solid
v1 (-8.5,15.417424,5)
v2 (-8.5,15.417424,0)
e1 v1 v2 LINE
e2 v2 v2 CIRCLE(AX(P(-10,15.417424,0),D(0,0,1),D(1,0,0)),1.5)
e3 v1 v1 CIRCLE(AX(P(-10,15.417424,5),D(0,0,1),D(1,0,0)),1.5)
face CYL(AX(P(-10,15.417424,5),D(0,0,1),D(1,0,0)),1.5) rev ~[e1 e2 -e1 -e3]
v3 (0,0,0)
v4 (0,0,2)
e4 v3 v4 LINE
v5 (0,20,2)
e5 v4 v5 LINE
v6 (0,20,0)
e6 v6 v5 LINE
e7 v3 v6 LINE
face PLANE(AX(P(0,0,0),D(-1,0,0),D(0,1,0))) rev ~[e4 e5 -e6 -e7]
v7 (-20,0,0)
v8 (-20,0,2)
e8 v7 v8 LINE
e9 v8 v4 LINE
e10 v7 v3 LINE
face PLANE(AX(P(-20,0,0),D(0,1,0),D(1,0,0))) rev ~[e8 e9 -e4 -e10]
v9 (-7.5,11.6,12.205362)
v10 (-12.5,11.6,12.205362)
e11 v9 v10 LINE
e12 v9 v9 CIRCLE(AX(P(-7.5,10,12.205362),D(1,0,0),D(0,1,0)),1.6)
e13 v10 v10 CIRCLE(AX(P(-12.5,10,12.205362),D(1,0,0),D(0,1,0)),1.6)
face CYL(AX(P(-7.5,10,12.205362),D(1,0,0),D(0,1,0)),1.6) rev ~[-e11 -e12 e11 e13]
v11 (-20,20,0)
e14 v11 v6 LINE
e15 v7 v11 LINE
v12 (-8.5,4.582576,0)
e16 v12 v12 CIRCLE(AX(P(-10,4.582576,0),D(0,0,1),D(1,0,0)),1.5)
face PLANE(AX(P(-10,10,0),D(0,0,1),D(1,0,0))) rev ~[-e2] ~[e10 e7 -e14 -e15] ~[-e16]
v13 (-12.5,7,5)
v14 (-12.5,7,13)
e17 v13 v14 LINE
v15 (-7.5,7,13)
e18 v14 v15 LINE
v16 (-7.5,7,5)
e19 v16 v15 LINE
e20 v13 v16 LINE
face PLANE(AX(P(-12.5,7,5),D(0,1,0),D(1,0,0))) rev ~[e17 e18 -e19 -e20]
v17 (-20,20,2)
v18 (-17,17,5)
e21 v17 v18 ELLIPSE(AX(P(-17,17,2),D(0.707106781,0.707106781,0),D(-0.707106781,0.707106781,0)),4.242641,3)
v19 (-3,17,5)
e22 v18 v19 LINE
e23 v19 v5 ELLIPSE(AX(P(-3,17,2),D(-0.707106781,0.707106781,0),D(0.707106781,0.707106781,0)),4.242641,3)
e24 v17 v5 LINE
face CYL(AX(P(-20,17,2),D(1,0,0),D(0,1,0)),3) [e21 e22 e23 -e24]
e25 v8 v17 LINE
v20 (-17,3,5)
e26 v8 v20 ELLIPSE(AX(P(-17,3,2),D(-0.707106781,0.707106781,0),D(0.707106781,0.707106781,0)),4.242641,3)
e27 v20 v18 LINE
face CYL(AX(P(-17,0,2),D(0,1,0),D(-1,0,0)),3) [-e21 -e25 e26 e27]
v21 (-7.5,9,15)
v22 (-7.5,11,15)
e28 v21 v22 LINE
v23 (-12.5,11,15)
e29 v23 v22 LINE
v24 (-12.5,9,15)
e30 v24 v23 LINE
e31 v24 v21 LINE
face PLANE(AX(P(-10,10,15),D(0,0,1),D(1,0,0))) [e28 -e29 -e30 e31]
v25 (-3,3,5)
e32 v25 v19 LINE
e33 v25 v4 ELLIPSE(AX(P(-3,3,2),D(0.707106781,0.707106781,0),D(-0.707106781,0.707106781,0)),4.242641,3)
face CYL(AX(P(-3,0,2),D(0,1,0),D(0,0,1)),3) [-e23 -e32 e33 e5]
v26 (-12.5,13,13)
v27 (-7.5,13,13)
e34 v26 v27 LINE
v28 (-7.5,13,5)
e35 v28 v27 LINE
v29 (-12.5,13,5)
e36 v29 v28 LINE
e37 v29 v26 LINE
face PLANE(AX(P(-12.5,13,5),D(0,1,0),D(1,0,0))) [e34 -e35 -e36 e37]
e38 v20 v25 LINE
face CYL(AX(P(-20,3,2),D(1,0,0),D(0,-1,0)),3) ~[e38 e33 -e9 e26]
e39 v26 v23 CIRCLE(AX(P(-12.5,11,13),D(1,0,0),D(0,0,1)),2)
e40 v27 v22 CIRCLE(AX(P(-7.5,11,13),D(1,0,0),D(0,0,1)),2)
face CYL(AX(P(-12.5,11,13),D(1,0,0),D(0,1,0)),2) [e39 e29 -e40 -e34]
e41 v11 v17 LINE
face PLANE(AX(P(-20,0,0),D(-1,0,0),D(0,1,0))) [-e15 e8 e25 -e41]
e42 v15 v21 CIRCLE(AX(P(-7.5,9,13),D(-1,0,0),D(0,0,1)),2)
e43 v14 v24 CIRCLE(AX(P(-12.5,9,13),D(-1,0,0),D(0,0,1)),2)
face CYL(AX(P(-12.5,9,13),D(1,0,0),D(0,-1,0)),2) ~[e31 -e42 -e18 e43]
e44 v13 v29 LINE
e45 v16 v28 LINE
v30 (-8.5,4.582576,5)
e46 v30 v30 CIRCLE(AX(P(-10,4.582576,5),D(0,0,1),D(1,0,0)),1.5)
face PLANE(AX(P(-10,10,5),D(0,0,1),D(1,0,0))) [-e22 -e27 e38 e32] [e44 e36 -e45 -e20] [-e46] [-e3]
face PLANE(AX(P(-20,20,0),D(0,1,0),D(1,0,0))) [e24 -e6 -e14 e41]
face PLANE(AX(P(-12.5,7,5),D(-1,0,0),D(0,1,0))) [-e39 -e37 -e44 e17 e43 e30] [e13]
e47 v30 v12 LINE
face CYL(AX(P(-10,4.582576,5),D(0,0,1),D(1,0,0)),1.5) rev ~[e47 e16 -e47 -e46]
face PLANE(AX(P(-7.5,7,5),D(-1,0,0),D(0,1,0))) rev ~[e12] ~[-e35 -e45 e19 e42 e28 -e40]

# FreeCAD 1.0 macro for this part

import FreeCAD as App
import Part
import Sketcher
from FreeCAD import Vector


def edges_at(feature, points):
    """Names of the edges that pass closest to the given points."""
    edges = feature.Shape.Edges
    near = lambda p: min(range(len(edges)), key=lambda i: edges[i].distToShape(Part.Vertex(*p))[0])
    return sorted({f"Edge{near(p) + 1}" for p in points})

doc = App.newDocument("Part")
body = doc.addObject("PartDesign::Body", "Body")

sketch1 = body.newObject("Sketcher::SketchObject", "Sketch")
sketch1.AttachmentSupport = (doc.getObject("XY_Plane"), [""])
sketch1.MapMode = "FlatFace"
sketch1.addGeometry(Part.LineSegment(Vector(-20, 20, 0), Vector(-20, 0, 0)), False)
sketch1.addGeometry(Part.LineSegment(Vector(-20, 0, 0), Vector(0, 0, 0)), False)
sketch1.addGeometry(Part.LineSegment(Vector(0, 0, 0), Vector(0, 20, 0)), False)
sketch1.addGeometry(Part.LineSegment(Vector(0, 20, 0), Vector(-20, 20, 0)), False)
sketch1.addConstraint(Sketcher.Constraint("Coincident", 0, 2, 1, 1))
sketch1.addConstraint(Sketcher.Constraint("Coincident", 1, 2, 2, 1))
sketch1.addConstraint(Sketcher.Constraint("Coincident", 2, 2, 3, 1))
sketch1.addConstraint(Sketcher.Constraint("Coincident", 3, 2, 0, 1))
sketch1.addConstraint(Sketcher.Constraint("Vertical", 0))
sketch1.addConstraint(Sketcher.Constraint("Horizontal", 1))
sketch1.addConstraint(Sketcher.Constraint("Vertical", 2))
sketch1.addConstraint(Sketcher.Constraint("Horizontal", 3))
sketch1.addConstraint(Sketcher.Constraint("Coincident", 1, 2, -1, 1))
sketch1.addConstraint(Sketcher.Constraint("Equal", 3, 0))
sketch1.addConstraint(Sketcher.Constraint("DistanceX", 1, 1, 1, 2, 20.0))
pad1 = body.newObject("PartDesign::Pad", "Pad")
pad1.Profile = sketch1
pad1.Length = 5

sketch2 = body.newObject("Sketcher::SketchObject", "Sketch001")
sketch2.AttachmentSupport = (doc.getObject("XY_Plane"), [""])
sketch2.MapMode = "FlatFace"
sketch2.AttachmentOffset = App.Placement(Vector(0, 0, 5), App.Rotation())
sketch2.addGeometry(Part.LineSegment(Vector(-12, 13, 0), Vector(-12, 7, 0)), False)
sketch2.addGeometry(Part.LineSegment(Vector(-12, 7, 0), Vector(-8, 7, 0)), False)
sketch2.addGeometry(Part.LineSegment(Vector(-8, 7, 0), Vector(-8, 13, 0)), False)
sketch2.addGeometry(Part.LineSegment(Vector(-8, 13, 0), Vector(-12, 13, 0)), False)
sketch2.addConstraint(Sketcher.Constraint("Coincident", 0, 2, 1, 1))
sketch2.addConstraint(Sketcher.Constraint("Coincident", 1, 2, 2, 1))
sketch2.addConstraint(Sketcher.Constraint("Coincident", 2, 2, 3, 1))
sketch2.addConstraint(Sketcher.Constraint("Coincident", 3, 2, 0, 1))
sketch2.addConstraint(Sketcher.Constraint("Vertical", 0))
sketch2.addConstraint(Sketcher.Constraint("Horizontal", 1))
sketch2.addConstraint(Sketcher.Constraint("Vertical", 2))
sketch2.addConstraint(Sketcher.Constraint("Horizontal", 3))
sketch2.addConstraint(Sketcher.Constraint("DistanceX", 1, 1, 1, 2, 5.0))
sketch2.addConstraint(Sketcher.Constraint("DistanceY", 0, 2, 0, 1, 6.0))
sketch2.addConstraint(Sketcher.Constraint("DistanceY", -1, 1, 0, 2, 7.0))
sketch2.addConstraint(Sketcher.Constraint("DistanceX", 0, 2, -1, 1, 12.5))
pad2 = body.newObject("PartDesign::Pad", "Pad001")
pad2.Profile = sketch2
pad2.Length = 10

sketch3 = body.newObject("Sketcher::SketchObject", "Sketch002")
sketch3.AttachmentSupport = (doc.getObject("YZ_Plane"), [""])
sketch3.MapMode = "FlatFace"
sketch3.AttachmentOffset = App.Placement(Vector(0, 0, -7.5), App.Rotation())
sketch3.addGeometry(Part.Circle(Vector(10, 12.2, 0), Vector(0, 0, 1), 1.6), False)
sketch3.addConstraint(Sketcher.Constraint("Diameter", 0, 3.2))
sketch3.addConstraint(Sketcher.Constraint("DistanceX", -1, 1, 0, 3, 10.0))
sketch3.addConstraint(Sketcher.Constraint("DistanceY", -1, 1, 0, 3, 12.205362))
pocket1 = body.newObject("PartDesign::Pocket", "Pocket")
pocket1.Profile = sketch3
pocket1.Type = "ThroughAll"

sketch4 = body.newObject("Sketcher::SketchObject", "Sketch003")
sketch4.AttachmentSupport = (doc.getObject("XY_Plane"), [""])
sketch4.MapMode = "FlatFace"
sketch4.AttachmentOffset = App.Placement(Vector(0, 0, 5), App.Rotation())
sketch4.addGeometry(Part.Circle(Vector(-10, 15.4, 0), Vector(0, 0, 1), 1.5), False)
sketch4.addGeometry(Part.Circle(Vector(-10, 4.6, 0), Vector(0, 0, 1), 1.5), False)
sketch4.addConstraint(Sketcher.Constraint("Equal", 0, 1))
sketch4.addConstraint(Sketcher.Constraint("Vertical", 0, 3, 1, 3))
sketch4.addConstraint(Sketcher.Constraint("Diameter", 0, 3.0))
sketch4.addConstraint(Sketcher.Constraint("DistanceX", 0, 3, -1, 1, 10.0))
sketch4.addConstraint(Sketcher.Constraint("DistanceY", 1, 3, 0, 3, 10.834848))
sketch4.addConstraint(Sketcher.Constraint("DistanceY", -1, 1, 0, 3, 15.417424))
pocket2 = body.newObject("PartDesign::Pocket", "Pocket001")
pocket2.Profile = sketch4
pocket2.Type = "ThroughAll"
doc.recompute()

fillet = body.newObject("PartDesign::Fillet", "Fillet")
fillet.Base = (pocket2, edges_at(pocket2, [
    (0, 10, 5),
    (-10, 0, 5),
    (-20, 10, 5),
    (-10, 20, 5),
]))
fillet.Radius = 3
doc.recompute()

fillet2 = body.newObject("PartDesign::Fillet", "Fillet001")
fillet2.Base = (fillet, edges_at(fillet, [(-10, 7, 15), (-10, 13, 15)]))
fillet2.Radius = 2

doc.recompute()
